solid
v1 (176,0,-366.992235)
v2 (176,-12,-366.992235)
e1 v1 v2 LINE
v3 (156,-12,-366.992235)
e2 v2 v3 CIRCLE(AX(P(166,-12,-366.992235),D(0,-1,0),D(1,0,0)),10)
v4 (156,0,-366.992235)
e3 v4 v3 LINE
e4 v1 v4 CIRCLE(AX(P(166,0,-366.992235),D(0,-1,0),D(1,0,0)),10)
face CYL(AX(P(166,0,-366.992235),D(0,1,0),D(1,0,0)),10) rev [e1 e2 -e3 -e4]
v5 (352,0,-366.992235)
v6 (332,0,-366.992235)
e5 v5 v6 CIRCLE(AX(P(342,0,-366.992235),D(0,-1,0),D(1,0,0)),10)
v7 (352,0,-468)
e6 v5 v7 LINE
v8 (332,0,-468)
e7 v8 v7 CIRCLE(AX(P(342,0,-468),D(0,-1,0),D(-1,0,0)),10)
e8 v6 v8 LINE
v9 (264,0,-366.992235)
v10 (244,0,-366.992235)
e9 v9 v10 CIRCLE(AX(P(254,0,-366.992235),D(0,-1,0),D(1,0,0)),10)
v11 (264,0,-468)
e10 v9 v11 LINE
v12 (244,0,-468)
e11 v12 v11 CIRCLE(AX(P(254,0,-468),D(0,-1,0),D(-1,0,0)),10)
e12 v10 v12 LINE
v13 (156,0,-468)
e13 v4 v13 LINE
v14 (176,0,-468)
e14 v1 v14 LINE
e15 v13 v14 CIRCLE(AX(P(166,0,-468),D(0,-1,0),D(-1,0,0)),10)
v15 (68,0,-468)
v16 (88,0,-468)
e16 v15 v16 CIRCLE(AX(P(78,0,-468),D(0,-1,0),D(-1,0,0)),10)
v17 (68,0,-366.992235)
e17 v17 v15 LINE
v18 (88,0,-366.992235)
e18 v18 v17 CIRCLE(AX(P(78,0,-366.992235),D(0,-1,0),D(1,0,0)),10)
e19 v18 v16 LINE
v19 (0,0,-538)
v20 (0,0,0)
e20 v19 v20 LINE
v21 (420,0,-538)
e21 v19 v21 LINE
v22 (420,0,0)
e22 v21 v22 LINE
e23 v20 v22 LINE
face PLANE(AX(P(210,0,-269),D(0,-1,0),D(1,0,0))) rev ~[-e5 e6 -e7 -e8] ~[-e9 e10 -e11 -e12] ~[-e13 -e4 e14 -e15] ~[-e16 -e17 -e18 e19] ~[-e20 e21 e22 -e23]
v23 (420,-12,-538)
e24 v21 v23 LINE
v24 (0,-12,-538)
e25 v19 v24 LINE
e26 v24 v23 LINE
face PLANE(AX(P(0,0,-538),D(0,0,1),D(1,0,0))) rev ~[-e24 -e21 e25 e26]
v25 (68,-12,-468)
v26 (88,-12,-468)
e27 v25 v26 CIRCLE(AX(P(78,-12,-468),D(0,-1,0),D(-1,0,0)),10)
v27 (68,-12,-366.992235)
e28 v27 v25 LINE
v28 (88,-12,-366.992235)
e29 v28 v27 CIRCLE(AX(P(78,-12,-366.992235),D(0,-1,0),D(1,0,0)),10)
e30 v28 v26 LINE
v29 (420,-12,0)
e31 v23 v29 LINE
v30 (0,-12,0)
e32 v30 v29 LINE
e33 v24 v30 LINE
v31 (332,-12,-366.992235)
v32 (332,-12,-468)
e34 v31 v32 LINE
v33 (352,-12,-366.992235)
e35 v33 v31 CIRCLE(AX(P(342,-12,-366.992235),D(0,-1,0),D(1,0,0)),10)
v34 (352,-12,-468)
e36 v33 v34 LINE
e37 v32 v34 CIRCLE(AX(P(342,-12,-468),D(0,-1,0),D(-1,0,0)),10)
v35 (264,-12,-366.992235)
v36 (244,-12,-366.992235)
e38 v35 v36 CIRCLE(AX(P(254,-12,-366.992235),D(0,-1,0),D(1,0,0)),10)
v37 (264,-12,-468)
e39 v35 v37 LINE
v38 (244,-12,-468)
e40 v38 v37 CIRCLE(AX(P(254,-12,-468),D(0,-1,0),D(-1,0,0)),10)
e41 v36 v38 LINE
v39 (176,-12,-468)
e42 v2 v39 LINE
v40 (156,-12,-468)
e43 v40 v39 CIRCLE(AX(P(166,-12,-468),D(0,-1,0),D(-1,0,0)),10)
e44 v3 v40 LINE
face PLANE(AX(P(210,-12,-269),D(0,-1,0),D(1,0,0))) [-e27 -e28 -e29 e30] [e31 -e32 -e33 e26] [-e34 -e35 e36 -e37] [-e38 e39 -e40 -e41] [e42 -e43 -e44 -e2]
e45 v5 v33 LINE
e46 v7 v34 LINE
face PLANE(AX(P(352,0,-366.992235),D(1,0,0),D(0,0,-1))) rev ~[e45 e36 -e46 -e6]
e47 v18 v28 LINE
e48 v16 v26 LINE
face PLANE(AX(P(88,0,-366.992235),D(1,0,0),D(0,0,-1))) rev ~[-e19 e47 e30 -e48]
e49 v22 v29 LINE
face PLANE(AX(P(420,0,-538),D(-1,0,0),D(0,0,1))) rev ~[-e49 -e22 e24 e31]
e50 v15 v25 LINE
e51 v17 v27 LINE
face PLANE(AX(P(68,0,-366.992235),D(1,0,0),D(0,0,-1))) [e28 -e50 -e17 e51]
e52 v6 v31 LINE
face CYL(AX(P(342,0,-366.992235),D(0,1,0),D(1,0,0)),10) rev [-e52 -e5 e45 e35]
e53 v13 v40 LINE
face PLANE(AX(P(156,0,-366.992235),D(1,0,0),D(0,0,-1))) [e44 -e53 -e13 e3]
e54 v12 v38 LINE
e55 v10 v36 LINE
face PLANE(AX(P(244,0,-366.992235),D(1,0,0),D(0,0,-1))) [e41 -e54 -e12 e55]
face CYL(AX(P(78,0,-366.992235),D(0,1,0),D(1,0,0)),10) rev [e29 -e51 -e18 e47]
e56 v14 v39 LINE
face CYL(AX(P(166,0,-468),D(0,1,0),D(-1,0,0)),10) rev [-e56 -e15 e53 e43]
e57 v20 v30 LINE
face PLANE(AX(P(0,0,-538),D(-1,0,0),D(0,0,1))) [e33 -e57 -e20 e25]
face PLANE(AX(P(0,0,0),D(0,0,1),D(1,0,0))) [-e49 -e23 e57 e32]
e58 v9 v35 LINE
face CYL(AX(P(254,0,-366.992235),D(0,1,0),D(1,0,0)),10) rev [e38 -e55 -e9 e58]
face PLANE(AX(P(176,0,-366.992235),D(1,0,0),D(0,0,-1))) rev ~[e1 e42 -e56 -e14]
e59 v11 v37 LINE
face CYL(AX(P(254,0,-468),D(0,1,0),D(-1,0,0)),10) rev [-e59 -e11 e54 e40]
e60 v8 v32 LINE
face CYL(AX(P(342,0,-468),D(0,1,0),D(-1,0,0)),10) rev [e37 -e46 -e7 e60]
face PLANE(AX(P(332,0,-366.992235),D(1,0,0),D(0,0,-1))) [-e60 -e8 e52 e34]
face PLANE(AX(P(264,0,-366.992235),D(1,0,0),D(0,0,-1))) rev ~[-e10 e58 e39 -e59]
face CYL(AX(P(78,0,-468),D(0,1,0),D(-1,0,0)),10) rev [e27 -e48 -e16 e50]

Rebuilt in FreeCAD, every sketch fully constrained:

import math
import FreeCAD as App
import Part
import Sketcher

doc = App.newDocument("Part")
body = doc.addObject("PartDesign::Body", "Body")

sketch1 = body.newObject("Sketcher::SketchObject", "Sketch")
sketch1.AttachmentSupport = (doc.getObject("XZ_Plane"), [""])
sketch1.MapMode = "FlatFace"
sketch1.addGeometry(Part.LineSegment(App.Vector(0, 0, 0), App.Vector(0, -538, 0)), False)
sketch1.addGeometry(Part.LineSegment(App.Vector(0, -538, 0), App.Vector(420, -538, 0)), False)
sketch1.addGeometry(Part.LineSegment(App.Vector(420, -538, 0), App.Vector(420, 0, 0)), False)
sketch1.addGeometry(Part.LineSegment(App.Vector(420, 0, 0), App.Vector(0, 0, 0)), False)
sketch1.addGeometry(Part.ArcOfCircle(Part.Circle(App.Vector(78, -367, 0), App.Vector(0, 0, 1), 10), math.radians(0), math.radians(180)), False)
sketch1.addGeometry(Part.LineSegment(App.Vector(88, -367, 0), App.Vector(88, -468, 0)), False)
sketch1.addGeometry(Part.ArcOfCircle(Part.Circle(App.Vector(78, -468, 0), App.Vector(0, 0, 1), 10), math.radians(180), math.radians(360)), False)
sketch1.addGeometry(Part.LineSegment(App.Vector(68, -468, 0), App.Vector(68, -367, 0)), False)
sketch1.addGeometry(Part.ArcOfCircle(Part.Circle(App.Vector(166, -367, 0), App.Vector(0, 0, 1), 10), math.radians(0), math.radians(180)), False)
sketch1.addGeometry(Part.LineSegment(App.Vector(176, -367, 0), App.Vector(176, -468, 0)), False)
sketch1.addGeometry(Part.ArcOfCircle(Part.Circle(App.Vector(166, -468, 0), App.Vector(0, 0, 1), 10), math.radians(180), math.radians(360)), False)
sketch1.addGeometry(Part.LineSegment(App.Vector(156, -468, 0), App.Vector(156, -367, 0)), False)
sketch1.addGeometry(Part.ArcOfCircle(Part.Circle(App.Vector(254, -367, 0), App.Vector(0, 0, 1), 10), math.radians(0), math.radians(180)), False)
sketch1.addGeometry(Part.LineSegment(App.Vector(264, -367, 0), App.Vector(264, -468, 0)), False)
sketch1.addGeometry(Part.ArcOfCircle(Part.Circle(App.Vector(254, -468, 0), App.Vector(0, 0, 1), 10), math.radians(180), math.radians(360)), False)
sketch1.addGeometry(Part.LineSegment(App.Vector(244, -468, 0), App.Vector(244, -367, 0)), False)
sketch1.addGeometry(Part.ArcOfCircle(Part.Circle(App.Vector(342, -367, 0), App.Vector(0, 0, 1), 10), math.radians(0), math.radians(180)), False)
sketch1.addGeometry(Part.LineSegment(App.Vector(352, -367, 0), App.Vector(352, -468, 0)), False)
sketch1.addGeometry(Part.ArcOfCircle(Part.Circle(App.Vector(342, -468, 0), App.Vector(0, 0, 1), 10), math.radians(180), math.radians(360)), False)
sketch1.addGeometry(Part.LineSegment(App.Vector(332, -468, 0), App.Vector(332, -367, 0)), False)
sketch1.addConstraint(Sketcher.Constraint("Coincident", 0, 2, 1, 1))
sketch1.addConstraint(Sketcher.Constraint("Coincident", 1, 2, 2, 1))
sketch1.addConstraint(Sketcher.Constraint("Coincident", 2, 2, 3, 1))
sketch1.addConstraint(Sketcher.Constraint("Coincident", 3, 2, 0, 1))
sketch1.addConstraint(Sketcher.Constraint("Tangent", 4, 1, 5, 1))
sketch1.addConstraint(Sketcher.Constraint("Tangent", 5, 2, 6, 2))
sketch1.addConstraint(Sketcher.Constraint("Tangent", 6, 1, 7, 1))
sketch1.addConstraint(Sketcher.Constraint("Tangent", 7, 2, 4, 2))
sketch1.addConstraint(Sketcher.Constraint("Tangent", 8, 1, 9, 1))
sketch1.addConstraint(Sketcher.Constraint("Tangent", 9, 2, 10, 2))
sketch1.addConstraint(Sketcher.Constraint("Tangent", 10, 1, 11, 1))
sketch1.addConstraint(Sketcher.Constraint("Tangent", 11, 2, 8, 2))
sketch1.addConstraint(Sketcher.Constraint("Tangent", 12, 1, 13, 1))
sketch1.addConstraint(Sketcher.Constraint("Tangent", 13, 2, 14, 2))
sketch1.addConstraint(Sketcher.Constraint("Tangent", 14, 1, 15, 1))
sketch1.addConstraint(Sketcher.Constraint("Tangent", 15, 2, 12, 2))
sketch1.addConstraint(Sketcher.Constraint("Tangent", 16, 1, 17, 1))
sketch1.addConstraint(Sketcher.Constraint("Tangent", 17, 2, 18, 2))
sketch1.addConstraint(Sketcher.Constraint("Tangent", 18, 1, 19, 1))
sketch1.addConstraint(Sketcher.Constraint("Tangent", 19, 2, 16, 2))
sketch1.addConstraint(Sketcher.Constraint("Vertical", 0))
sketch1.addConstraint(Sketcher.Constraint("Horizontal", 1))
sketch1.addConstraint(Sketcher.Constraint("Vertical", 2))
sketch1.addConstraint(Sketcher.Constraint("Horizontal", 3))
sketch1.addConstraint(Sketcher.Constraint("Vertical", 5))
sketch1.addConstraint(Sketcher.Constraint("Vertical", 7))
sketch1.addConstraint(Sketcher.Constraint("Vertical", 9))
sketch1.addConstraint(Sketcher.Constraint("Vertical", 11))
sketch1.addConstraint(Sketcher.Constraint("Vertical", 13))
sketch1.addConstraint(Sketcher.Constraint("Vertical", 15))
sketch1.addConstraint(Sketcher.Constraint("Vertical", 17))
sketch1.addConstraint(Sketcher.Constraint("Vertical", 19))
sketch1.addConstraint(Sketcher.Constraint("Coincident", 3, 2, -1, 1))
sketch1.addConstraint(Sketcher.Constraint("Equal", 6, 8))
sketch1.addConstraint(Sketcher.Constraint("Equal", 10, 12))
sketch1.addConstraint(Sketcher.Constraint("Equal", 14, 16))
sketch1.addConstraint(Sketcher.Constraint("Horizontal", 4, 3, 8, 3))
sketch1.addConstraint(Sketcher.Constraint("Horizontal", 6, 3, 10, 3))
sketch1.addConstraint(Sketcher.Constraint("Horizontal", 8, 3, 12, 3))
sketch1.addConstraint(Sketcher.Constraint("Horizontal", 10, 3, 14, 3))
sketch1.addConstraint(Sketcher.Constraint("Horizontal", 12, 3, 16, 3))
sketch1.addConstraint(Sketcher.Constraint("Horizontal", 14, 3, 18, 3))
sketch1.addConstraint(Sketcher.Constraint("Radius", 4, 10.0))
sketch1.addConstraint(Sketcher.Constraint("DistanceX", 1, 1, 1, 2, 420.0))
sketch1.addConstraint(Sketcher.Constraint("DistanceY", 0, 2, 0, 1, 538.0))
sketch1.addConstraint(Sketcher.Constraint("DistanceX", -1, 1, 4, 3, 78.0))
sketch1.addConstraint(Sketcher.Constraint("DistanceY", 6, 3, -1, 1, 468.0))
sketch1.addConstraint(Sketcher.Constraint("DistanceX", -1, 1, 8, 3, 166.0))
sketch1.addConstraint(Sketcher.Constraint("DistanceX", -1, 1, 12, 3, 254.0))
sketch1.addConstraint(Sketcher.Constraint("DistanceX", -1, 1, 16, 3, 342.0))
sketch1.addConstraint(Sketcher.Constraint("DistanceY", 5, 2, 5, 1, 101.007765))
pad1 = body.newObject("PartDesign::Pad", "Pad")
pad1.Profile = sketch1
pad1.Length = 12

doc.recompute()
